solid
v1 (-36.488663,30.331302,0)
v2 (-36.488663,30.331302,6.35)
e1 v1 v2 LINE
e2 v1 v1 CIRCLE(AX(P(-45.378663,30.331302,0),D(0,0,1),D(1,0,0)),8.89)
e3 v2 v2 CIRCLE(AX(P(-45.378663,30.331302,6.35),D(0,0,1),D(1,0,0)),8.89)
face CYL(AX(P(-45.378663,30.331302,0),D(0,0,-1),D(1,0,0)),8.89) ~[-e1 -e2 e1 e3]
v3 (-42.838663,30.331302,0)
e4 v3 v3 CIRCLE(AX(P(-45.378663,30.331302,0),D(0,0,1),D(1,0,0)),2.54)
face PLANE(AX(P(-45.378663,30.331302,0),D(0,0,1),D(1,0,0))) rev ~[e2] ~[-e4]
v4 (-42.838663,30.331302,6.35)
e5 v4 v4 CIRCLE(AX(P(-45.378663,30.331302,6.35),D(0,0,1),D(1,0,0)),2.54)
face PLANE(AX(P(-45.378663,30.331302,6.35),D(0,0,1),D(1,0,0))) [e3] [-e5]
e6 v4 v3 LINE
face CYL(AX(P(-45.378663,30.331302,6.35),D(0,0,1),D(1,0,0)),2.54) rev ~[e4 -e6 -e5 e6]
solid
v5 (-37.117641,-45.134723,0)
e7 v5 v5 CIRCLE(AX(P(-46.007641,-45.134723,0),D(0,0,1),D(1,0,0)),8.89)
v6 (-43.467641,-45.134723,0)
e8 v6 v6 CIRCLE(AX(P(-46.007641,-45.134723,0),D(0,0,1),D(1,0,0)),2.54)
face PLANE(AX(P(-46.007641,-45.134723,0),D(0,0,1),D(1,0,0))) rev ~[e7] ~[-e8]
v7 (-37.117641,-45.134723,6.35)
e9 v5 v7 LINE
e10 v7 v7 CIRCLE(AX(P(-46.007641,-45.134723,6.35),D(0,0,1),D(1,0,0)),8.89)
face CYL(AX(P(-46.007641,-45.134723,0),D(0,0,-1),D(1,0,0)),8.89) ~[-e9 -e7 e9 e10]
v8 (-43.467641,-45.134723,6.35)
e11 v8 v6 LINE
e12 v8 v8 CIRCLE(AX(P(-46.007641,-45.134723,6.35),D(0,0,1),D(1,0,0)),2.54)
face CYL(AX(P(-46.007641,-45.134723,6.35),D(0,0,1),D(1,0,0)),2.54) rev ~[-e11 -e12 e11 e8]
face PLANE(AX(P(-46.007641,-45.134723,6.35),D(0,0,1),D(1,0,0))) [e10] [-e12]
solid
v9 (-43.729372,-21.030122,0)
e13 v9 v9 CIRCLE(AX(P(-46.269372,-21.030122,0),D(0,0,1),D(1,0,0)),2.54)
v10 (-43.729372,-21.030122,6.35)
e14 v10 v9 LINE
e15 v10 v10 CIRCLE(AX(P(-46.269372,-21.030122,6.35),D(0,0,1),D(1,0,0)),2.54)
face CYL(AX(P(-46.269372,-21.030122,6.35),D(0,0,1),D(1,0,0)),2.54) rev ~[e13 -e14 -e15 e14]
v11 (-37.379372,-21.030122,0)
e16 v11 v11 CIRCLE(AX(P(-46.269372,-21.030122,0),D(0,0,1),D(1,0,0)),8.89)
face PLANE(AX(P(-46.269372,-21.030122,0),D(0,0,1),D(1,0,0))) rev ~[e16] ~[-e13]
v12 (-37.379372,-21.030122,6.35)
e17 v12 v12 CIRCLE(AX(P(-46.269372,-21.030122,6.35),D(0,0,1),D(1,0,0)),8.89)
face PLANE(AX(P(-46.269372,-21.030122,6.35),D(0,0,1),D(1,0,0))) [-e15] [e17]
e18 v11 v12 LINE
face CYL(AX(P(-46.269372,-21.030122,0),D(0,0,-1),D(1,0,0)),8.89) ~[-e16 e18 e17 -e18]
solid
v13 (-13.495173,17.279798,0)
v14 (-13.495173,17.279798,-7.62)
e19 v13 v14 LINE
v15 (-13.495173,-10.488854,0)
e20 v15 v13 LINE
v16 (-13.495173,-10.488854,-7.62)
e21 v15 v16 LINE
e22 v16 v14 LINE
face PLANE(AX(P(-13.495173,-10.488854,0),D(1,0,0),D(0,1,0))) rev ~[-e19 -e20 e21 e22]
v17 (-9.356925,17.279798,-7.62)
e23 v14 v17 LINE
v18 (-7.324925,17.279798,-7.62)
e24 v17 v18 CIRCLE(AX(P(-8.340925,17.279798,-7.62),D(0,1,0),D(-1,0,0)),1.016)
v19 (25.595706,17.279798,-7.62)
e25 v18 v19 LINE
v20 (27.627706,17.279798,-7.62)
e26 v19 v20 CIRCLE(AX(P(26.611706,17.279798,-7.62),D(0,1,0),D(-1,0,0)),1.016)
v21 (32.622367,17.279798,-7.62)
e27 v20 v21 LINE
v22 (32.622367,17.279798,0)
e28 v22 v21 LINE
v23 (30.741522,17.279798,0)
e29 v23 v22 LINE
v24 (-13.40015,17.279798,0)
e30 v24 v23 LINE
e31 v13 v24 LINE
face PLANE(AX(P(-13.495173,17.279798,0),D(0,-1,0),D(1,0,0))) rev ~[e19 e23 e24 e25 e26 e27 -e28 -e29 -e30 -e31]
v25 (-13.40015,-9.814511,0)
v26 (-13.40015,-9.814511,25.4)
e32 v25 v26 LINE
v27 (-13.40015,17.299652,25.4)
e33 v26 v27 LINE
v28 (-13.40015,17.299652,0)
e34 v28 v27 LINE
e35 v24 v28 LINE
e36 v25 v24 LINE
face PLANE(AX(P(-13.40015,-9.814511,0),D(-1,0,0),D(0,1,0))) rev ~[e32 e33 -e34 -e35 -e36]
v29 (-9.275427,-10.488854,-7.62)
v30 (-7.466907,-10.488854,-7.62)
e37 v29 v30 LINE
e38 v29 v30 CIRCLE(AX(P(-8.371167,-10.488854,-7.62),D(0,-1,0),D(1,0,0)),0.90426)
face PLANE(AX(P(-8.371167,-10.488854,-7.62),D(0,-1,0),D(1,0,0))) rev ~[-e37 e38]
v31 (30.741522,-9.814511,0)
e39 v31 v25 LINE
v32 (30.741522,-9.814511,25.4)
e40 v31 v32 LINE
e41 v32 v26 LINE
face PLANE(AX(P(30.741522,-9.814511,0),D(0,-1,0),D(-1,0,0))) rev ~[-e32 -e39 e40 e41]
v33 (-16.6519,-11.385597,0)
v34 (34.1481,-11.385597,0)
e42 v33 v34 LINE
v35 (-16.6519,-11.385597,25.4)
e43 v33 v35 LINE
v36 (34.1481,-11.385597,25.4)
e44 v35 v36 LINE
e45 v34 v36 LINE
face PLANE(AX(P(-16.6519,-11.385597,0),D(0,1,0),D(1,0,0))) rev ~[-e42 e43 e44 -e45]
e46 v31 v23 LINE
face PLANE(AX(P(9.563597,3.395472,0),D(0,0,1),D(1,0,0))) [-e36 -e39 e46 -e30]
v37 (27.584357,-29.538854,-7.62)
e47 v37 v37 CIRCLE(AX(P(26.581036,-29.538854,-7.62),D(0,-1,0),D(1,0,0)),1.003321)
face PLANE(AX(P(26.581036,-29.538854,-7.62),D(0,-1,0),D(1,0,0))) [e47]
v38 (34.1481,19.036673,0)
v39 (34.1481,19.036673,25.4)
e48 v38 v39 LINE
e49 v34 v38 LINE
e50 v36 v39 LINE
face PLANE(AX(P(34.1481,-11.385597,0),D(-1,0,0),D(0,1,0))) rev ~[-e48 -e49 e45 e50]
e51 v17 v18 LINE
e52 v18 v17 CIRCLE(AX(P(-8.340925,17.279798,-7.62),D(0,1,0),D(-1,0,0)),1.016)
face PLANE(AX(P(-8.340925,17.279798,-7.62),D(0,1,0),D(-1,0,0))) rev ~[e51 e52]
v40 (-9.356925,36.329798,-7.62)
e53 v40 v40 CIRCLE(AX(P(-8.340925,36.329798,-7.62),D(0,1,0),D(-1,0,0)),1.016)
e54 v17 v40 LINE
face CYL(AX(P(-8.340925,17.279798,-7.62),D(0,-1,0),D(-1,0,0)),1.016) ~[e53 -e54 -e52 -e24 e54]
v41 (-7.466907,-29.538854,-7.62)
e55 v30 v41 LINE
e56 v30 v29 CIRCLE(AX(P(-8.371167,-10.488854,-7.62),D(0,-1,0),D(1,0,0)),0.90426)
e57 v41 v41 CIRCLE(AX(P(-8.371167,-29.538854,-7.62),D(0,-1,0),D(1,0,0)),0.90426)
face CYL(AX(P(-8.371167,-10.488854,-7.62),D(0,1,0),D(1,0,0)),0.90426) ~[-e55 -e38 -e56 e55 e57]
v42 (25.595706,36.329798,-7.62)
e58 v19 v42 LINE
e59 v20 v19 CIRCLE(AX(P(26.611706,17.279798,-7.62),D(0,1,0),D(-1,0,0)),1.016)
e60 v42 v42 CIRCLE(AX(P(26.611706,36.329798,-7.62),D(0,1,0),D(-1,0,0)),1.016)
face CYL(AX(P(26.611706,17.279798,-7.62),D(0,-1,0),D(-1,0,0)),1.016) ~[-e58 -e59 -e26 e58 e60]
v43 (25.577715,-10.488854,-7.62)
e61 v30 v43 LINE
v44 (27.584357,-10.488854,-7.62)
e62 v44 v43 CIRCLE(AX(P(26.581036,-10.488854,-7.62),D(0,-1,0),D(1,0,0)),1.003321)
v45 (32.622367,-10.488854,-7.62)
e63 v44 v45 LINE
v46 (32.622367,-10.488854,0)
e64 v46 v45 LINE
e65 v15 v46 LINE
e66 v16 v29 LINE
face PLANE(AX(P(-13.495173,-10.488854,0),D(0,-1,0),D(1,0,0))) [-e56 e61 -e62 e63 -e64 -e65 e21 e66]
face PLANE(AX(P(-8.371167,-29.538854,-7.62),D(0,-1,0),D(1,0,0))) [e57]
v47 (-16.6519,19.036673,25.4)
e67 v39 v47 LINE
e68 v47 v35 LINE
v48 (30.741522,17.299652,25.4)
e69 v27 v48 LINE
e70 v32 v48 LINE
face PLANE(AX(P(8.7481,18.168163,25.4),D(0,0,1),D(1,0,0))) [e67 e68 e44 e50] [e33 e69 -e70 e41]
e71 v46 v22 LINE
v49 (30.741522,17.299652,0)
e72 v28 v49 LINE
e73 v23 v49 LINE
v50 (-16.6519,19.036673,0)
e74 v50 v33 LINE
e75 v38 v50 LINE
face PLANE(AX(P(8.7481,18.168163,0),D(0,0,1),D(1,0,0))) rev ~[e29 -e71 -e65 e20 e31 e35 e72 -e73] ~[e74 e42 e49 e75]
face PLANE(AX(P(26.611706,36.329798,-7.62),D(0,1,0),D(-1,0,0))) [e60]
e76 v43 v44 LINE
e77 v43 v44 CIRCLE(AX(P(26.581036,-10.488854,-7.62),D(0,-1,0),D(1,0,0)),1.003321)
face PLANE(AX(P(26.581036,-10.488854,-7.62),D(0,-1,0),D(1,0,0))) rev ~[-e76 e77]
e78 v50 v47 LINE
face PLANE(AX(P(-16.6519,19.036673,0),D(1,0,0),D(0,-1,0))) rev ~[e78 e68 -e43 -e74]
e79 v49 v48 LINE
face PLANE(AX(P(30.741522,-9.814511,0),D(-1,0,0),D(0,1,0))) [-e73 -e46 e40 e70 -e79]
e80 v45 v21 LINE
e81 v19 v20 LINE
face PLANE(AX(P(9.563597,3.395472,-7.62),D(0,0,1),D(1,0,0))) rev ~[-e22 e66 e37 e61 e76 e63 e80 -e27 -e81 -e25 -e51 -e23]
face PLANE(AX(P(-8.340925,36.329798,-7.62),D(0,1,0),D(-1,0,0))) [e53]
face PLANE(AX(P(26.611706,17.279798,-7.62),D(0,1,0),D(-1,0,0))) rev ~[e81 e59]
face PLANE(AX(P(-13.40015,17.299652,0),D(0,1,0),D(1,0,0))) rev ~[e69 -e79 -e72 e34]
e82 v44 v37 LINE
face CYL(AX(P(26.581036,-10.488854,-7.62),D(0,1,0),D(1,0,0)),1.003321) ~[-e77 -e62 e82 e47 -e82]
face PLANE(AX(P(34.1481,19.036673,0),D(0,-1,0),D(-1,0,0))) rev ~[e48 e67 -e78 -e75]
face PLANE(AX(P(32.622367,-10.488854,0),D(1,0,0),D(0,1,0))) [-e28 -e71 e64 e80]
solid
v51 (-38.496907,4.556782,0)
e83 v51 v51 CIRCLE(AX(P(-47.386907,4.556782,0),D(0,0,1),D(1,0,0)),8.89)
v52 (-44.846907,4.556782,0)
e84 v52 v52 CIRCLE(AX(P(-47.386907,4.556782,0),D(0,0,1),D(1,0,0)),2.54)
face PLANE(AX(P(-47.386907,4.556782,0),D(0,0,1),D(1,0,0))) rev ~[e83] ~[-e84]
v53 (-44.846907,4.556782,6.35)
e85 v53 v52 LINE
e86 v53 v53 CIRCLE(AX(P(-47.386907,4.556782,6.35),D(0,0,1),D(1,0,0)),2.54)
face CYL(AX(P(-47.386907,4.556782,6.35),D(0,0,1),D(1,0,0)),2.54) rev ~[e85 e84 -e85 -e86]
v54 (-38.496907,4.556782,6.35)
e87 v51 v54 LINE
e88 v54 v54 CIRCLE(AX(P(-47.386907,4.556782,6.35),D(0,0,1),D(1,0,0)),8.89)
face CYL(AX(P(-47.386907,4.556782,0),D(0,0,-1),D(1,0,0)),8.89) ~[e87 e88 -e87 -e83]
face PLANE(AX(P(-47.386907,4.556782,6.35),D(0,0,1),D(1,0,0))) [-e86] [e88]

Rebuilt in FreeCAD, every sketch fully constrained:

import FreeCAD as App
import Part
import Sketcher
Q = App.Units.Quantity

doc = App.newDocument("Part")
body = doc.addObject("PartDesign::Body", "Body")

# Sketch on XY plane
sketch1 = body.newObject("Sketcher::SketchObject", "Sketch")
sketch1.AttachmentSupport = (doc.getObject("XY_Plane"), [""])
sketch1.MapMode = "FlatFace"
sketch1.addGeometry(Part.LineSegment(App.Vector(34, 19, 0), App.Vector(-17, 19, 0)), False)
sketch1.addGeometry(Part.LineSegment(App.Vector(-17, 19, 0), App.Vector(-17, -11, 0)), False)
sketch1.addGeometry(Part.LineSegment(App.Vector(-17, -11, 0), App.Vector(34, -11, 0)), False)
sketch1.addGeometry(Part.LineSegment(App.Vector(34, -11, 0), App.Vector(34, 19, 0)), False)
sketch1.addGeometry(Part.LineSegment(App.Vector(-13, -10, 0), App.Vector(-13, 17, 0)), False)
sketch1.addGeometry(Part.LineSegment(App.Vector(-13, 17, 0), App.Vector(31, 17, 0)), False)
sketch1.addGeometry(Part.LineSegment(App.Vector(31, 17, 0), App.Vector(31, -10, 0)), False)
sketch1.addGeometry(Part.LineSegment(App.Vector(31, -10, 0), App.Vector(-13, -10, 0)), False)
sketch1.addConstraint(Sketcher.Constraint("Coincident", 0, 2, 1, 1))
sketch1.addConstraint(Sketcher.Constraint("Coincident", 1, 2, 2, 1))
sketch1.addConstraint(Sketcher.Constraint("Coincident", 2, 2, 3, 1))
sketch1.addConstraint(Sketcher.Constraint("Coincident", 3, 2, 0, 1))
sketch1.addConstraint(Sketcher.Constraint("Coincident", 4, 2, 5, 1))
sketch1.addConstraint(Sketcher.Constraint("Coincident", 5, 2, 6, 1))
sketch1.addConstraint(Sketcher.Constraint("Coincident", 6, 2, 7, 1))
sketch1.addConstraint(Sketcher.Constraint("Coincident", 7, 2, 4, 1))
sketch1.addConstraint(Sketcher.Constraint("Horizontal", 0))
sketch1.addConstraint(Sketcher.Constraint("Vertical", 1))
sketch1.addConstraint(Sketcher.Constraint("Horizontal", 2))
sketch1.addConstraint(Sketcher.Constraint("Vertical", 3))
sketch1.addConstraint(Sketcher.Constraint("Vertical", 4))
sketch1.addConstraint(Sketcher.Constraint("Horizontal", 5))
sketch1.addConstraint(Sketcher.Constraint("Vertical", 6))
sketch1.addConstraint(Sketcher.Constraint("Horizontal", 7))
sketch1.addConstraint(Sketcher.Constraint("DistanceX", 0, 2, 0, 1, Q("2 in")))
sketch1.addConstraint(Sketcher.Constraint("DistanceY", 1, 2, 1, 1, Q("30.42227 mm")))
sketch1.addConstraint(Sketcher.Constraint("DistanceX", 0, 2, -1, 1, Q("16.6519 mm")))
sketch1.addConstraint(Sketcher.Constraint("DistanceX", 5, 1, 5, 2, Q("44.141673 mm")))
sketch1.addConstraint(Sketcher.Constraint("DistanceY", 4, 1, 4, 2, Q("27.114163 mm")))
sketch1.addConstraint(Sketcher.Constraint("DistanceX", 4, 2, -1, 1, Q("13.40015 mm")))
sketch1.addConstraint(Sketcher.Constraint("DistanceY", 6, 2, -1, 1, Q("9.814511 mm")))
sketch1.addConstraint(Sketcher.Constraint("DistanceY", 4, 2, 0, 2, Q("1.737021 mm")))
pad1 = body.newObject("PartDesign::Pad", "Pad")
pad1.Profile = sketch1
pad1.Length = Q("1 in")

# Sketch on XY plane
sketch2 = body.newObject("Sketcher::SketchObject", "Sketch001")
sketch2.AttachmentSupport = (doc.getObject("XY_Plane"), [""])
sketch2.MapMode = "FlatFace"
sketch2.addGeometry(Part.LineSegment(App.Vector(34, 19, 0), App.Vector(-17, 19, 0)), False)
sketch2.addGeometry(Part.LineSegment(App.Vector(-17, 19, 0), App.Vector(-17, -11, 0)), False)
sketch2.addGeometry(Part.LineSegment(App.Vector(-17, -11, 0), App.Vector(34, -11, 0)), False)
sketch2.addGeometry(Part.LineSegment(App.Vector(34, -11, 0), App.Vector(34, 19, 0)), False)
sketch2.addGeometry(Part.LineSegment(App.Vector(-13, -10, 0), App.Vector(-13, 17, 0)), False)
sketch2.addGeometry(Part.LineSegment(App.Vector(-13, 17, 0), App.Vector(31, 17, 0)), False)
sketch2.addGeometry(Part.LineSegment(App.Vector(31, 17, 0), App.Vector(31, -10, 0)), False)
sketch2.addGeometry(Part.LineSegment(App.Vector(31, -10, 0), App.Vector(-13, -10, 0)), False)
sketch2.addConstraint(Sketcher.Constraint("Coincident", 0, 2, 1, 1))
sketch2.addConstraint(Sketcher.Constraint("Coincident", 1, 2, 2, 1))
sketch2.addConstraint(Sketcher.Constraint("Coincident", 2, 2, 3, 1))
sketch2.addConstraint(Sketcher.Constraint("Coincident", 3, 2, 0, 1))
sketch2.addConstraint(Sketcher.Constraint("Coincident", 4, 2, 5, 1))
sketch2.addConstraint(Sketcher.Constraint("Coincident", 5, 2, 6, 1))
sketch2.addConstraint(Sketcher.Constraint("Coincident", 6, 2, 7, 1))
sketch2.addConstraint(Sketcher.Constraint("Coincident", 7, 2, 4, 1))
sketch2.addConstraint(Sketcher.Constraint("Horizontal", 0))
sketch2.addConstraint(Sketcher.Constraint("Vertical", 1))
sketch2.addConstraint(Sketcher.Constraint("Horizontal", 2))
sketch2.addConstraint(Sketcher.Constraint("Vertical", 3))
sketch2.addConstraint(Sketcher.Constraint("Vertical", 4))
sketch2.addConstraint(Sketcher.Constraint("Horizontal", 5))
sketch2.addConstraint(Sketcher.Constraint("Vertical", 6))
sketch2.addConstraint(Sketcher.Constraint("Horizontal", 7))
sketch2.addConstraint(Sketcher.Constraint("DistanceX", 0, 2, 0, 1, Q("2 in")))
sketch2.addConstraint(Sketcher.Constraint("DistanceY", 1, 2, 1, 1, Q("30.42227 mm")))
sketch2.addConstraint(Sketcher.Constraint("DistanceX", 0, 2, -1, 1, Q("16.6519 mm")))
sketch2.addConstraint(Sketcher.Constraint("DistanceX", 5, 1, 5, 2, Q("44.141673 mm")))
sketch2.addConstraint(Sketcher.Constraint("DistanceY", 4, 1, 4, 2, Q("27.114163 mm")))
sketch2.addConstraint(Sketcher.Constraint("DistanceX", 4, 2, -1, 1, Q("13.40015 mm")))
sketch2.addConstraint(Sketcher.Constraint("DistanceY", 6, 2, -1, 1, Q("9.814511 mm")))
sketch2.addConstraint(Sketcher.Constraint("DistanceY", 4, 2, 0, 2, Q("1.737021 mm")))
pad2 = body.newObject("PartDesign::Pad", "Pad001")
pad2.Profile = sketch2
pad2.Length = Q("1 in")

# Sketch on XY plane
sketch3 = body.newObject("Sketcher::SketchObject", "Sketch002")
sketch3.AttachmentSupport = (doc.getObject("XY_Plane"), [""])
sketch3.MapMode = "FlatFace"
sketch3.addGeometry(Part.LineSegment(App.Vector(-13, 17, 0), App.Vector(-13, -10, 0)), False)
sketch3.addGeometry(Part.LineSegment(App.Vector(-13, -10, 0), App.Vector(33, -10, 0)), False)
sketch3.addGeometry(Part.LineSegment(App.Vector(33, -10, 0), App.Vector(33, 17, 0)), False)
sketch3.addGeometry(Part.LineSegment(App.Vector(33, 17, 0), App.Vector(-13, 17, 0)), False)
sketch3.addConstraint(Sketcher.Constraint("Coincident", 0, 2, 1, 1))
sketch3.addConstraint(Sketcher.Constraint("Coincident", 1, 2, 2, 1))
sketch3.addConstraint(Sketcher.Constraint("Coincident", 2, 2, 3, 1))
sketch3.addConstraint(Sketcher.Constraint("Coincident", 3, 2, 0, 1))
sketch3.addConstraint(Sketcher.Constraint("Vertical", 0))
sketch3.addConstraint(Sketcher.Constraint("Horizontal", 1))
sketch3.addConstraint(Sketcher.Constraint("Vertical", 2))
sketch3.addConstraint(Sketcher.Constraint("Horizontal", 3))
sketch3.addConstraint(Sketcher.Constraint("DistanceX", 1, 1, 1, 2, Q("46.11754 mm")))
sketch3.addConstraint(Sketcher.Constraint("DistanceY", 0, 2, 0, 1, Q("27.768652 mm")))
sketch3.addConstraint(Sketcher.Constraint("DistanceY", -1, 1, 2, 2, Q("17.279798 mm")))
sketch3.addConstraint(Sketcher.Constraint("DistanceX", 0, 2, -1, 1, Q("13.495173 mm")))
pad3 = body.newObject("PartDesign::Pad", "Pad002")
pad3.Profile = sketch3
pad3.Length = Q("0.3 in")
pad3.Reversed = True

# Sketch on XZ plane
sketch4 = body.newObject("Sketcher::SketchObject", "Sketch003")
sketch4.AttachmentSupport = (doc.getObject("XZ_Plane"), [""])
sketch4.MapMode = "FlatFace"
sketch4.AttachmentOffset = App.Placement(App.Vector(0, 0, -17.279798), App.Rotation())
sketch4.addGeometry(Part.Circle(App.Vector(26.6, -7.6, 0), App.Vector(0, 0, 1), 1), False)
sketch4.addGeometry(Part.Circle(App.Vector(-8.3, -7.6, 0), App.Vector(0, 0, 1), 1), False)
sketch4.addConstraint(Sketcher.Constraint("Equal", 0, 1))
sketch4.addConstraint(Sketcher.Constraint("Horizontal", 0, 3, 1, 3))
sketch4.addConstraint(Sketcher.Constraint("Diameter", 0, Q("0.08 in")))
sketch4.addConstraint(Sketcher.Constraint("DistanceY", 0, 3, -1, 1, Q("0.3 in")))
sketch4.addConstraint(Sketcher.Constraint("DistanceX", 1, 3, 0, 3, Q("34.952631 mm")))
sketch4.addConstraint(Sketcher.Constraint("DistanceX", -1, 1, 0, 3, Q("26.611706 mm")))
pad4 = body.newObject("PartDesign::Pad", "Pad003")
pad4.Profile = sketch4
pad4.Length = Q("0.75 in")
pad4.Reversed = True

# Sketch on XZ plane
sketch5 = body.newObject("Sketcher::SketchObject", "Sketch004")
sketch5.AttachmentSupport = (doc.getObject("XZ_Plane"), [""])
sketch5.MapMode = "FlatFace"
sketch5.AttachmentOffset = App.Placement(App.Vector(0, 0, 10.488854), App.Rotation())
sketch5.addGeometry(Part.Circle(App.Vector(-8.4, -7.6, 0), App.Vector(0, 0, 1), 0.9), False)
sketch5.addGeometry(Part.Circle(App.Vector(26.6, -7.6, 0), App.Vector(0, 0, 1), 1), False)
sketch5.addConstraint(Sketcher.Constraint("Horizontal", 0, 3, 1, 3))
sketch5.addConstraint(Sketcher.Constraint("DistanceY", 0, 3, -1, 1, Q("0.3 in")))
sketch5.addConstraint(Sketcher.Constraint("Diameter", 0, Q("1.80852 mm")))
sketch5.addConstraint(Sketcher.Constraint("Diameter", 1, Q("2.006642 mm")))
sketch5.addConstraint(Sketcher.Constraint("DistanceX", 0, 3, -1, 1, Q("8.371167 mm")))
sketch5.addConstraint(Sketcher.Constraint("DistanceX", -1, 1, 1, 3, Q("26.581036 mm")))
pad5 = body.newObject("PartDesign::Pad", "Pad004")
pad5.Profile = sketch5
pad5.Length = Q("0.75 in")
body2 = doc.addObject("PartDesign::Body", "Body001")

# Sketch on XY plane
sketch6 = body2.newObject("Sketcher::SketchObject", "Sketch005")
sketch6.AttachmentSupport = (doc.getObject("XY_Plane001"), [""])
sketch6.MapMode = "FlatFace"
sketch6.addGeometry(Part.Circle(App.Vector(-45, 30, 0), App.Vector(0, 0, 1), 9), False)
sketch6.addConstraint(Sketcher.Constraint("Diameter", 0, Q("0.7 in")))
sketch6.addConstraint(Sketcher.Constraint("DistanceX", 0, 3, -1, 1, Q("45.378663 mm")))
sketch6.addConstraint(Sketcher.Constraint("DistanceY", -1, 1, 0, 3, Q("30.331302 mm")))
pad6 = body2.newObject("PartDesign::Pad", "Pad005")
pad6.Profile = sketch6
pad6.Length = Q("0.25 in")

# Sketch on XY plane
sketch7 = body2.newObject("Sketcher::SketchObject", "Sketch006")
sketch7.AttachmentSupport = (doc.getObject("XY_Plane001"), [""])
sketch7.MapMode = "FlatFace"
sketch7.AttachmentOffset = App.Placement(App.Vector(0, 0, 0.25 * 25.4), App.Rotation())
sketch7.addGeometry(Part.Circle(App.Vector(-45.4, 30.3, 0), App.Vector(0, 0, 1), 2.5), False)
sketch7.addConstraint(Sketcher.Constraint("Diameter", 0, Q("0.2 in")))
sketch7.addConstraint(Sketcher.Constraint("DistanceX", 0, 3, -1, 1, Q("45.378663 mm")))
sketch7.addConstraint(Sketcher.Constraint("DistanceY", -1, 1, 0, 3, Q("30.331302 mm")))
pocket1 = body2.newObject("PartDesign::Pocket", "Pocket")
pocket1.Profile = sketch7
pocket1.Length = Q("1 in")
body3 = doc.addObject("PartDesign::Body", "Body002")

# Sketch on XY plane
sketch8 = body3.newObject("Sketcher::SketchObject", "Sketch007")
sketch8.AttachmentSupport = (doc.getObject("XY_Plane002"), [""])
sketch8.MapMode = "FlatFace"
sketch8.addGeometry(Part.Circle(App.Vector(-47, 5, 0), App.Vector(0, 0, 1), 9), False)
sketch8.addConstraint(Sketcher.Constraint("Diameter", 0, Q("0.7 in")))
sketch8.addConstraint(Sketcher.Constraint("DistanceY", -1, 1, 0, 3, Q("4.556782 mm")))
sketch8.addConstraint(Sketcher.Constraint("DistanceX", 0, 3, -1, 1, Q("47.386907 mm")))
pad7 = body3.newObject("PartDesign::Pad", "Pad006")
pad7.Profile = sketch8
pad7.Length = Q("0.25 in")

# Sketch on XY plane
sketch9 = body3.newObject("Sketcher::SketchObject", "Sketch008")
sketch9.AttachmentSupport = (doc.getObject("XY_Plane002"), [""])
sketch9.MapMode = "FlatFace"
sketch9.AttachmentOffset = App.Placement(App.Vector(0, 0, 0.25 * 25.4), App.Rotation())
sketch9.addGeometry(Part.Circle(App.Vector(-47.4, 4.6, 0), App.Vector(0, 0, 1), 2.5), False)
sketch9.addConstraint(Sketcher.Constraint("Diameter", 0, Q("0.2 in")))
sketch9.addConstraint(Sketcher.Constraint("DistanceY", -1, 1, 0, 3, Q("4.556782 mm")))
sketch9.addConstraint(Sketcher.Constraint("DistanceX", 0, 3, -1, 1, Q("47.386907 mm")))
pocket2 = body3.newObject("PartDesign::Pocket", "Pocket001")
pocket2.Profile = sketch9
pocket2.Length = Q("1 in")
body4 = doc.addObject("PartDesign::Body", "Body003")

# Sketch on XY plane
sketch10 = body4.newObject("Sketcher::SketchObject", "Sketch009")
sketch10.AttachmentSupport = (doc.getObject("XY_Plane003"), [""])
sketch10.MapMode = "FlatFace"
sketch10.addGeometry(Part.Circle(App.Vector(-46, -21, 0), App.Vector(0, 0, 1), 9), False)
sketch10.addConstraint(Sketcher.Constraint("Diameter", 0, Q("0.7 in")))
sketch10.addConstraint(Sketcher.Constraint("DistanceX", 0, 3, -1, 1, Q("46.269372 mm")))
sketch10.addConstraint(Sketcher.Constraint("DistanceY", 0, 3, -1, 1, Q("21.030122 mm")))
pad8 = body4.newObject("PartDesign::Pad", "Pad007")
pad8.Profile = sketch10
pad8.Length = Q("0.25 in")

# Sketch on XY plane
sketch11 = body4.newObject("Sketcher::SketchObject", "Sketch010")
sketch11.AttachmentSupport = (doc.getObject("XY_Plane003"), [""])
sketch11.MapMode = "FlatFace"
sketch11.AttachmentOffset = App.Placement(App.Vector(0, 0, 0.25 * 25.4), App.Rotation())
sketch11.addGeometry(Part.Circle(App.Vector(-46.3, -21, 0), App.Vector(0, 0, 1), 2.5), False)
sketch11.addConstraint(Sketcher.Constraint("Diameter", 0, Q("0.2 in")))
sketch11.addConstraint(Sketcher.Constraint("DistanceX", 0, 3, -1, 1, Q("46.269372 mm")))
sketch11.addConstraint(Sketcher.Constraint("DistanceY", 0, 3, -1, 1, Q("21.030122 mm")))
pocket3 = body4.newObject("PartDesign::Pocket", "Pocket002")
pocket3.Profile = sketch11
pocket3.Length = Q("1 in")
body5 = doc.addObject("PartDesign::Body", "Body004")

# Sketch on XY plane
sketch12 = body5.newObject("Sketcher::SketchObject", "Sketch011")
sketch12.AttachmentSupport = (doc.getObject("XY_Plane004"), [""])
sketch12.MapMode = "FlatFace"
sketch12.addGeometry(Part.Circle(App.Vector(-46, -45, 0), App.Vector(0, 0, 1), 9), False)
sketch12.addConstraint(Sketcher.Constraint("Diameter", 0, Q("0.7 in")))
sketch12.addConstraint(Sketcher.Constraint("DistanceX", 0, 3, -1, 1, Q("46.007641 mm")))
sketch12.addConstraint(Sketcher.Constraint("DistanceY", 0, 3, -1, 1, Q("45.134723 mm")))
pad9 = body5.newObject("PartDesign::Pad", "Pad008")
pad9.Profile = sketch12
pad9.Length = Q("0.25 in")

# Sketch on XY plane
sketch13 = body5.newObject("Sketcher::SketchObject", "Sketch012")
sketch13.AttachmentSupport = (doc.getObject("XY_Plane004"), [""])
sketch13.MapMode = "FlatFace"
sketch13.AttachmentOffset = App.Placement(App.Vector(0, 0, 0.25 * 25.4), App.Rotation())
sketch13.addGeometry(Part.Circle(App.Vector(-46, -45.1, 0), App.Vector(0, 0, 1), 2.5), False)
sketch13.addConstraint(Sketcher.Constraint("Diameter", 0, Q("0.2 in")))
sketch13.addConstraint(Sketcher.Constraint("DistanceX", 0, 3, -1, 1, Q("46.007641 mm")))
sketch13.addConstraint(Sketcher.Constraint("DistanceY", 0, 3, -1, 1, Q("45.134723 mm")))
pocket4 = body5.newObject("PartDesign::Pocket", "Pocket003")
pocket4.Profile = sketch13
pocket4.Length = Q("1 in")

doc.recompute()
